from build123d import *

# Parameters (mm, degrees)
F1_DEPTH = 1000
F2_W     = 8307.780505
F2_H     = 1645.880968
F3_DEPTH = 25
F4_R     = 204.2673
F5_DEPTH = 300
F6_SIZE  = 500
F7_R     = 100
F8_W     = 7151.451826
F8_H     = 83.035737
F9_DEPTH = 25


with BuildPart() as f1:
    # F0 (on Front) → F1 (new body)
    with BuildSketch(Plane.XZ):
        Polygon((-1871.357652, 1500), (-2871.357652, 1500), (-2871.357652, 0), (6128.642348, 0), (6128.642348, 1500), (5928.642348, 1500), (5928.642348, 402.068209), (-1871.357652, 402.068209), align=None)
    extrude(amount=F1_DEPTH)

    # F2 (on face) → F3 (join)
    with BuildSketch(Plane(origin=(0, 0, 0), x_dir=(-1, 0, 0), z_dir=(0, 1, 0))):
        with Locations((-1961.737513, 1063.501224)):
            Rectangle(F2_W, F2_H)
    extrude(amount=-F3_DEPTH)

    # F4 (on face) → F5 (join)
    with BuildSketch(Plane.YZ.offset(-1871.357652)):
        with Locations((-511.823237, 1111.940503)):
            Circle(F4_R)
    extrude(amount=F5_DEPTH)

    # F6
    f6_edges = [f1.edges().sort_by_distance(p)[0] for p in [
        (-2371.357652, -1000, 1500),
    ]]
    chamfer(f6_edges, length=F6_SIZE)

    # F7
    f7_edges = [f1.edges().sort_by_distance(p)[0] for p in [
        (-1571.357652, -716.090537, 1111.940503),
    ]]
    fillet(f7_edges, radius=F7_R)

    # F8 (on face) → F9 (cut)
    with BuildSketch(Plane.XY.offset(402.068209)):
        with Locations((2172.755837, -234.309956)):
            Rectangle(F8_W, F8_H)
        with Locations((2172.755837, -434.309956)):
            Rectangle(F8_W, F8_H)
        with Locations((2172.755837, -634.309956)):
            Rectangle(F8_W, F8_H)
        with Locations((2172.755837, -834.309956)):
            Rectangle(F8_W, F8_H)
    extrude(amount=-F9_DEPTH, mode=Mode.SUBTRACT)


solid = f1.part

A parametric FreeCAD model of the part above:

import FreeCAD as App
import Part
import Sketcher


def edges_at(feature, points):
    """Names of the edges that pass closest to the given points."""
    edges = feature.Shape.Edges
    near = lambda p: min(range(len(edges)), key=lambda i: edges[i].distToShape(Part.Vertex(*p))[0])
    return sorted({f"Edge{near(p) + 1}" for p in points})

doc = App.newDocument("Part")
body = doc.addObject("PartDesign::Body", "Body")

# Sketch on XZ plane
sketch1 = doc.addObject("Sketcher::SketchObject", "Sketch")
body.addObject(sketch1)
sketch1.AttachmentSupport = (doc.XZ_Plane, [""])
sketch1.MapMode = "FlatFace"
sketch1.addGeometry([
    Part.LineSegment(App.Vector(-1871, 1500, 0), App.Vector(-2871, 1500, 0)),  # 0
    Part.LineSegment(App.Vector(-2871, 1500, 0), App.Vector(-2871, 0, 0)),  # 1
    Part.LineSegment(App.Vector(-2871, 0, 0), App.Vector(6129, 0, 0)),  # 2
    Part.LineSegment(App.Vector(6129, 0, 0), App.Vector(6129, 1500, 0)),  # 3
    Part.LineSegment(App.Vector(6129, 1500, 0), App.Vector(5929, 1500, 0)),  # 4
    Part.LineSegment(App.Vector(5929, 1500, 0), App.Vector(5929, 402, 0)),  # 5
    Part.LineSegment(App.Vector(5929, 402, 0), App.Vector(-1871, 402, 0)),  # 6
    Part.LineSegment(App.Vector(-1871, 402, 0), App.Vector(-1871, 1500, 0)),  # 7
], False)
sketch1.addConstraint([
    Sketcher.Constraint("Coincident", 0, 2, 1, 1),
    Sketcher.Constraint("Coincident", 1, 2, 2, 1),
    Sketcher.Constraint("Coincident", 2, 2, 3, 1),
    Sketcher.Constraint("Coincident", 3, 2, 4, 1),
    Sketcher.Constraint("Coincident", 4, 2, 5, 1),
    Sketcher.Constraint("Coincident", 5, 2, 6, 1),
    Sketcher.Constraint("Coincident", 6, 2, 7, 1),
    Sketcher.Constraint("Coincident", 7, 2, 0, 1),
    Sketcher.Constraint("Horizontal", 0),
    Sketcher.Constraint("Vertical", 1),
    Sketcher.Constraint("Horizontal", 2),
    Sketcher.Constraint("Vertical", 3),
    Sketcher.Constraint("Horizontal", 4),
    Sketcher.Constraint("Vertical", 5),
    Sketcher.Constraint("Horizontal", 6),
    Sketcher.Constraint("Vertical", 7),
    Sketcher.Constraint("PointOnObject", 1, 2, -1),
    Sketcher.Constraint("Horizontal", 0, 2, 3, 2),
    Sketcher.Constraint("DistanceX", 0, 2, 0, 1, 1000.0),
    Sketcher.Constraint("DistanceX", 2, 1, 2, 2, 9000.0),
    Sketcher.Constraint("DistanceX", 4, 2, 4, 1, 200.0),
    Sketcher.Constraint("DistanceY", 1, 2, 1, 1, 1500.0),
    Sketcher.Constraint("DistanceY", 5, 2, 5, 1, 1097.931791),
    Sketcher.Constraint("DistanceX", -1, 1, 2, 2, 6128.642348),
])
pad1 = doc.addObject("PartDesign::Pad", "Pad")
body.addObject(pad1)
pad1.Profile = sketch1
pad1.Length = 1000

# Sketch on XZ plane
sketch2 = doc.addObject("Sketcher::SketchObject", "Sketch001")
body.addObject(sketch2)
sketch2.AttachmentSupport = (doc.XZ_Plane, [""])
sketch2.MapMode = "FlatFace"
sketch2.addGeometry([
    Part.LineSegment(App.Vector(6116, 1886, 0), App.Vector(6116, 241, 0)),
    Part.LineSegment(App.Vector(6116, 241, 0), App.Vector(-2192, 241, 0)),
    Part.LineSegment(App.Vector(-2192, 241, 0), App.Vector(-2192, 1886, 0)),
    Part.LineSegment(App.Vector(-2192, 1886, 0), App.Vector(6116, 1886, 0)),
], False)
sketch2.addConstraint([
    Sketcher.Constraint("Coincident", 0, 2, 1, 1),
    Sketcher.Constraint("Coincident", 1, 2, 2, 1),
    Sketcher.Constraint("Coincident", 2, 2, 3, 1),
    Sketcher.Constraint("Coincident", 3, 2, 0, 1),
    Sketcher.Constraint("Vertical", 0),
    Sketcher.Constraint("Horizontal", 1),
    Sketcher.Constraint("Vertical", 2),
    Sketcher.Constraint("Horizontal", 3),
    Sketcher.Constraint("DistanceY", 0, 2, 0, 1, 1645.880968),
    Sketcher.Constraint("DistanceX", 1, 2, 1, 1, 8307.780505),
    Sketcher.Constraint("DistanceY", -1, 1, 0, 2, 240.56074),
    Sketcher.Constraint("DistanceX", 1, 2, -1, 1, 2192.152739),
])
pad2 = doc.addObject("PartDesign::Pad", "Pad001")
body.addObject(pad2)
pad2.Profile = sketch2
pad2.Length = 25

# Sketch on YZ plane
sketch3 = doc.addObject("Sketcher::SketchObject", "Sketch002")
body.addObject(sketch3)
sketch3.AttachmentSupport = (doc.YZ_Plane, [""])
sketch3.MapMode = "FlatFace"
sketch3.AttachmentOffset = App.Placement(App.Vector(0, 0, -1871.357652), App.Rotation())
sketch3.addGeometry(Part.Circle(App.Vector(-512, 1112, 0), App.Vector(0, 0, 1), 204), False)
sketch3.addConstraint([
    Sketcher.Constraint("Diameter", 0, 408.5346),
    Sketcher.Constraint("DistanceX", 0, 3, -1, 1, 511.823237),
    Sketcher.Constraint("DistanceY", -1, 1, 0, 3, 1111.940503),
])
pad3 = doc.addObject("PartDesign::Pad", "Pad002")
body.addObject(pad3)
pad3.Profile = sketch3
pad3.Length = 300
doc.recompute()

chamfer = doc.addObject("PartDesign::Chamfer", "Chamfer")
body.addObject(chamfer)
chamfer.Base = (pad3, edges_at(pad3, [(-2371.358, -1000, 1500)]))
chamfer.Size = 500
doc.recompute()

fillet = doc.addObject("PartDesign::Fillet", "Fillet")
body.addObject(fillet)
fillet.Base = (chamfer, edges_at(chamfer, [(-1571.358, -716.091, 1111.941)]))
fillet.Radius = 100

# Sketch on XY plane
sketch4 = doc.addObject("Sketcher::SketchObject", "Sketch003")
body.addObject(sketch4)
sketch4.AttachmentSupport = (doc.XY_Plane, [""])
sketch4.MapMode = "FlatFace"
sketch4.AttachmentOffset = App.Placement(App.Vector(0, 0, 402.068209), App.Rotation())
sketch4.addGeometry([
    Part.LineSegment(App.Vector(-1403, -193, 0), App.Vector(-1403, -276, 0)),  # 0
    Part.LineSegment(App.Vector(-1403, -276, 0), App.Vector(5748, -276, 0)),  # 1
    Part.LineSegment(App.Vector(5748, -276, 0), App.Vector(5748, -193, 0)),  # 2
    Part.LineSegment(App.Vector(5748, -193, 0), App.Vector(-1403, -193, 0)),  # 3
    Part.LineSegment(App.Vector(-1403, -393, 0), App.Vector(-1403, -476, 0)),  # 4
    Part.LineSegment(App.Vector(-1403, -476, 0), App.Vector(5748, -476, 0)),  # 5
    Part.LineSegment(App.Vector(5748, -476, 0), App.Vector(5748, -393, 0)),  # 6
    Part.LineSegment(App.Vector(5748, -393, 0), App.Vector(-1403, -393, 0)),  # 7
    Part.LineSegment(App.Vector(-1403, -593, 0), App.Vector(-1403, -676, 0)),  # 8
    Part.LineSegment(App.Vector(-1403, -676, 0), App.Vector(5748, -676, 0)),  # 9
    Part.LineSegment(App.Vector(5748, -676, 0), App.Vector(5748, -593, 0)),  # 10
    Part.LineSegment(App.Vector(5748, -593, 0), App.Vector(-1403, -593, 0)),  # 11
    Part.LineSegment(App.Vector(-1403, -793, 0), App.Vector(-1403, -876, 0)),  # 12
    Part.LineSegment(App.Vector(-1403, -876, 0), App.Vector(5748, -876, 0)),  # 13
    Part.LineSegment(App.Vector(5748, -876, 0), App.Vector(5748, -793, 0)),  # 14
    Part.LineSegment(App.Vector(5748, -793, 0), App.Vector(-1403, -793, 0)),  # 15
], False)
sketch4.addConstraint([
    Sketcher.Constraint("Coincident", 0, 2, 1, 1),
    Sketcher.Constraint("Coincident", 1, 2, 2, 1),
    Sketcher.Constraint("Coincident", 2, 2, 3, 1),
    Sketcher.Constraint("Coincident", 3, 2, 0, 1),
    Sketcher.Constraint("Coincident", 4, 2, 5, 1),
    Sketcher.Constraint("Coincident", 5, 2, 6, 1),
    Sketcher.Constraint("Coincident", 6, 2, 7, 1),
    Sketcher.Constraint("Coincident", 7, 2, 4, 1),
    Sketcher.Constraint("Coincident", 8, 2, 9, 1),
    Sketcher.Constraint("Coincident", 9, 2, 10, 1),
    Sketcher.Constraint("Coincident", 10, 2, 11, 1),
    Sketcher.Constraint("Coincident", 11, 2, 8, 1),
    Sketcher.Constraint("Coincident", 12, 2, 13, 1),
    Sketcher.Constraint("Coincident", 13, 2, 14, 1),
    Sketcher.Constraint("Coincident", 14, 2, 15, 1),
    Sketcher.Constraint("Coincident", 15, 2, 12, 1),
    Sketcher.Constraint("Vertical", 0),
    Sketcher.Constraint("Horizontal", 1),
    Sketcher.Constraint("Vertical", 2),
    Sketcher.Constraint("Horizontal", 3),
    Sketcher.Constraint("Vertical", 4),
    Sketcher.Constraint("Horizontal", 5),
    Sketcher.Constraint("Vertical", 6),
    Sketcher.Constraint("Horizontal", 7),
    Sketcher.Constraint("Vertical", 8),
    Sketcher.Constraint("Horizontal", 9),
    Sketcher.Constraint("Vertical", 10),
    Sketcher.Constraint("Horizontal", 11),
    Sketcher.Constraint("Vertical", 12),
    Sketcher.Constraint("Horizontal", 13),
    Sketcher.Constraint("Vertical", 14),
    Sketcher.Constraint("Horizontal", 15),
    Sketcher.Constraint("Vertical", 3, 2, 4, 2),
    Sketcher.Constraint("Vertical", 2, 2, 5, 2),
    Sketcher.Constraint("Vertical", 7, 2, 8, 2),
    Sketcher.Constraint("Vertical", 6, 2, 9, 2),
    Sketcher.Constraint("Vertical", 11, 2, 12, 2),
    Sketcher.Constraint("Vertical", 10, 2, 13, 2),
    Sketcher.Constraint("Equal", 2, 4),
    Sketcher.Constraint("Equal", 6, 8),
    Sketcher.Constraint("Equal", 10, 12),
    Sketcher.Constraint("DistanceY", 4, 2, 0, 2, 200.0),
    Sketcher.Constraint("DistanceY", 8, 2, 4, 2, 200.0),
    Sketcher.Constraint("DistanceY", 12, 2, 8, 2, 200.0),
    Sketcher.Constraint("DistanceX", 1, 1, 1, 2, 7151.451826),
    Sketcher.Constraint("DistanceY", 0, 2, 0, 1, 83.035737),
    Sketcher.Constraint("DistanceX", -1, 1, 1, 2, 5748.48175),
    Sketcher.Constraint("DistanceY", 0, 2, -1, 1, 275.827825),
])
pocket1 = doc.addObject("PartDesign::Pocket", "Pocket")
body.addObject(pocket1)
pocket1.Profile = sketch4
pocket1.Length = 25

doc.recompute()
